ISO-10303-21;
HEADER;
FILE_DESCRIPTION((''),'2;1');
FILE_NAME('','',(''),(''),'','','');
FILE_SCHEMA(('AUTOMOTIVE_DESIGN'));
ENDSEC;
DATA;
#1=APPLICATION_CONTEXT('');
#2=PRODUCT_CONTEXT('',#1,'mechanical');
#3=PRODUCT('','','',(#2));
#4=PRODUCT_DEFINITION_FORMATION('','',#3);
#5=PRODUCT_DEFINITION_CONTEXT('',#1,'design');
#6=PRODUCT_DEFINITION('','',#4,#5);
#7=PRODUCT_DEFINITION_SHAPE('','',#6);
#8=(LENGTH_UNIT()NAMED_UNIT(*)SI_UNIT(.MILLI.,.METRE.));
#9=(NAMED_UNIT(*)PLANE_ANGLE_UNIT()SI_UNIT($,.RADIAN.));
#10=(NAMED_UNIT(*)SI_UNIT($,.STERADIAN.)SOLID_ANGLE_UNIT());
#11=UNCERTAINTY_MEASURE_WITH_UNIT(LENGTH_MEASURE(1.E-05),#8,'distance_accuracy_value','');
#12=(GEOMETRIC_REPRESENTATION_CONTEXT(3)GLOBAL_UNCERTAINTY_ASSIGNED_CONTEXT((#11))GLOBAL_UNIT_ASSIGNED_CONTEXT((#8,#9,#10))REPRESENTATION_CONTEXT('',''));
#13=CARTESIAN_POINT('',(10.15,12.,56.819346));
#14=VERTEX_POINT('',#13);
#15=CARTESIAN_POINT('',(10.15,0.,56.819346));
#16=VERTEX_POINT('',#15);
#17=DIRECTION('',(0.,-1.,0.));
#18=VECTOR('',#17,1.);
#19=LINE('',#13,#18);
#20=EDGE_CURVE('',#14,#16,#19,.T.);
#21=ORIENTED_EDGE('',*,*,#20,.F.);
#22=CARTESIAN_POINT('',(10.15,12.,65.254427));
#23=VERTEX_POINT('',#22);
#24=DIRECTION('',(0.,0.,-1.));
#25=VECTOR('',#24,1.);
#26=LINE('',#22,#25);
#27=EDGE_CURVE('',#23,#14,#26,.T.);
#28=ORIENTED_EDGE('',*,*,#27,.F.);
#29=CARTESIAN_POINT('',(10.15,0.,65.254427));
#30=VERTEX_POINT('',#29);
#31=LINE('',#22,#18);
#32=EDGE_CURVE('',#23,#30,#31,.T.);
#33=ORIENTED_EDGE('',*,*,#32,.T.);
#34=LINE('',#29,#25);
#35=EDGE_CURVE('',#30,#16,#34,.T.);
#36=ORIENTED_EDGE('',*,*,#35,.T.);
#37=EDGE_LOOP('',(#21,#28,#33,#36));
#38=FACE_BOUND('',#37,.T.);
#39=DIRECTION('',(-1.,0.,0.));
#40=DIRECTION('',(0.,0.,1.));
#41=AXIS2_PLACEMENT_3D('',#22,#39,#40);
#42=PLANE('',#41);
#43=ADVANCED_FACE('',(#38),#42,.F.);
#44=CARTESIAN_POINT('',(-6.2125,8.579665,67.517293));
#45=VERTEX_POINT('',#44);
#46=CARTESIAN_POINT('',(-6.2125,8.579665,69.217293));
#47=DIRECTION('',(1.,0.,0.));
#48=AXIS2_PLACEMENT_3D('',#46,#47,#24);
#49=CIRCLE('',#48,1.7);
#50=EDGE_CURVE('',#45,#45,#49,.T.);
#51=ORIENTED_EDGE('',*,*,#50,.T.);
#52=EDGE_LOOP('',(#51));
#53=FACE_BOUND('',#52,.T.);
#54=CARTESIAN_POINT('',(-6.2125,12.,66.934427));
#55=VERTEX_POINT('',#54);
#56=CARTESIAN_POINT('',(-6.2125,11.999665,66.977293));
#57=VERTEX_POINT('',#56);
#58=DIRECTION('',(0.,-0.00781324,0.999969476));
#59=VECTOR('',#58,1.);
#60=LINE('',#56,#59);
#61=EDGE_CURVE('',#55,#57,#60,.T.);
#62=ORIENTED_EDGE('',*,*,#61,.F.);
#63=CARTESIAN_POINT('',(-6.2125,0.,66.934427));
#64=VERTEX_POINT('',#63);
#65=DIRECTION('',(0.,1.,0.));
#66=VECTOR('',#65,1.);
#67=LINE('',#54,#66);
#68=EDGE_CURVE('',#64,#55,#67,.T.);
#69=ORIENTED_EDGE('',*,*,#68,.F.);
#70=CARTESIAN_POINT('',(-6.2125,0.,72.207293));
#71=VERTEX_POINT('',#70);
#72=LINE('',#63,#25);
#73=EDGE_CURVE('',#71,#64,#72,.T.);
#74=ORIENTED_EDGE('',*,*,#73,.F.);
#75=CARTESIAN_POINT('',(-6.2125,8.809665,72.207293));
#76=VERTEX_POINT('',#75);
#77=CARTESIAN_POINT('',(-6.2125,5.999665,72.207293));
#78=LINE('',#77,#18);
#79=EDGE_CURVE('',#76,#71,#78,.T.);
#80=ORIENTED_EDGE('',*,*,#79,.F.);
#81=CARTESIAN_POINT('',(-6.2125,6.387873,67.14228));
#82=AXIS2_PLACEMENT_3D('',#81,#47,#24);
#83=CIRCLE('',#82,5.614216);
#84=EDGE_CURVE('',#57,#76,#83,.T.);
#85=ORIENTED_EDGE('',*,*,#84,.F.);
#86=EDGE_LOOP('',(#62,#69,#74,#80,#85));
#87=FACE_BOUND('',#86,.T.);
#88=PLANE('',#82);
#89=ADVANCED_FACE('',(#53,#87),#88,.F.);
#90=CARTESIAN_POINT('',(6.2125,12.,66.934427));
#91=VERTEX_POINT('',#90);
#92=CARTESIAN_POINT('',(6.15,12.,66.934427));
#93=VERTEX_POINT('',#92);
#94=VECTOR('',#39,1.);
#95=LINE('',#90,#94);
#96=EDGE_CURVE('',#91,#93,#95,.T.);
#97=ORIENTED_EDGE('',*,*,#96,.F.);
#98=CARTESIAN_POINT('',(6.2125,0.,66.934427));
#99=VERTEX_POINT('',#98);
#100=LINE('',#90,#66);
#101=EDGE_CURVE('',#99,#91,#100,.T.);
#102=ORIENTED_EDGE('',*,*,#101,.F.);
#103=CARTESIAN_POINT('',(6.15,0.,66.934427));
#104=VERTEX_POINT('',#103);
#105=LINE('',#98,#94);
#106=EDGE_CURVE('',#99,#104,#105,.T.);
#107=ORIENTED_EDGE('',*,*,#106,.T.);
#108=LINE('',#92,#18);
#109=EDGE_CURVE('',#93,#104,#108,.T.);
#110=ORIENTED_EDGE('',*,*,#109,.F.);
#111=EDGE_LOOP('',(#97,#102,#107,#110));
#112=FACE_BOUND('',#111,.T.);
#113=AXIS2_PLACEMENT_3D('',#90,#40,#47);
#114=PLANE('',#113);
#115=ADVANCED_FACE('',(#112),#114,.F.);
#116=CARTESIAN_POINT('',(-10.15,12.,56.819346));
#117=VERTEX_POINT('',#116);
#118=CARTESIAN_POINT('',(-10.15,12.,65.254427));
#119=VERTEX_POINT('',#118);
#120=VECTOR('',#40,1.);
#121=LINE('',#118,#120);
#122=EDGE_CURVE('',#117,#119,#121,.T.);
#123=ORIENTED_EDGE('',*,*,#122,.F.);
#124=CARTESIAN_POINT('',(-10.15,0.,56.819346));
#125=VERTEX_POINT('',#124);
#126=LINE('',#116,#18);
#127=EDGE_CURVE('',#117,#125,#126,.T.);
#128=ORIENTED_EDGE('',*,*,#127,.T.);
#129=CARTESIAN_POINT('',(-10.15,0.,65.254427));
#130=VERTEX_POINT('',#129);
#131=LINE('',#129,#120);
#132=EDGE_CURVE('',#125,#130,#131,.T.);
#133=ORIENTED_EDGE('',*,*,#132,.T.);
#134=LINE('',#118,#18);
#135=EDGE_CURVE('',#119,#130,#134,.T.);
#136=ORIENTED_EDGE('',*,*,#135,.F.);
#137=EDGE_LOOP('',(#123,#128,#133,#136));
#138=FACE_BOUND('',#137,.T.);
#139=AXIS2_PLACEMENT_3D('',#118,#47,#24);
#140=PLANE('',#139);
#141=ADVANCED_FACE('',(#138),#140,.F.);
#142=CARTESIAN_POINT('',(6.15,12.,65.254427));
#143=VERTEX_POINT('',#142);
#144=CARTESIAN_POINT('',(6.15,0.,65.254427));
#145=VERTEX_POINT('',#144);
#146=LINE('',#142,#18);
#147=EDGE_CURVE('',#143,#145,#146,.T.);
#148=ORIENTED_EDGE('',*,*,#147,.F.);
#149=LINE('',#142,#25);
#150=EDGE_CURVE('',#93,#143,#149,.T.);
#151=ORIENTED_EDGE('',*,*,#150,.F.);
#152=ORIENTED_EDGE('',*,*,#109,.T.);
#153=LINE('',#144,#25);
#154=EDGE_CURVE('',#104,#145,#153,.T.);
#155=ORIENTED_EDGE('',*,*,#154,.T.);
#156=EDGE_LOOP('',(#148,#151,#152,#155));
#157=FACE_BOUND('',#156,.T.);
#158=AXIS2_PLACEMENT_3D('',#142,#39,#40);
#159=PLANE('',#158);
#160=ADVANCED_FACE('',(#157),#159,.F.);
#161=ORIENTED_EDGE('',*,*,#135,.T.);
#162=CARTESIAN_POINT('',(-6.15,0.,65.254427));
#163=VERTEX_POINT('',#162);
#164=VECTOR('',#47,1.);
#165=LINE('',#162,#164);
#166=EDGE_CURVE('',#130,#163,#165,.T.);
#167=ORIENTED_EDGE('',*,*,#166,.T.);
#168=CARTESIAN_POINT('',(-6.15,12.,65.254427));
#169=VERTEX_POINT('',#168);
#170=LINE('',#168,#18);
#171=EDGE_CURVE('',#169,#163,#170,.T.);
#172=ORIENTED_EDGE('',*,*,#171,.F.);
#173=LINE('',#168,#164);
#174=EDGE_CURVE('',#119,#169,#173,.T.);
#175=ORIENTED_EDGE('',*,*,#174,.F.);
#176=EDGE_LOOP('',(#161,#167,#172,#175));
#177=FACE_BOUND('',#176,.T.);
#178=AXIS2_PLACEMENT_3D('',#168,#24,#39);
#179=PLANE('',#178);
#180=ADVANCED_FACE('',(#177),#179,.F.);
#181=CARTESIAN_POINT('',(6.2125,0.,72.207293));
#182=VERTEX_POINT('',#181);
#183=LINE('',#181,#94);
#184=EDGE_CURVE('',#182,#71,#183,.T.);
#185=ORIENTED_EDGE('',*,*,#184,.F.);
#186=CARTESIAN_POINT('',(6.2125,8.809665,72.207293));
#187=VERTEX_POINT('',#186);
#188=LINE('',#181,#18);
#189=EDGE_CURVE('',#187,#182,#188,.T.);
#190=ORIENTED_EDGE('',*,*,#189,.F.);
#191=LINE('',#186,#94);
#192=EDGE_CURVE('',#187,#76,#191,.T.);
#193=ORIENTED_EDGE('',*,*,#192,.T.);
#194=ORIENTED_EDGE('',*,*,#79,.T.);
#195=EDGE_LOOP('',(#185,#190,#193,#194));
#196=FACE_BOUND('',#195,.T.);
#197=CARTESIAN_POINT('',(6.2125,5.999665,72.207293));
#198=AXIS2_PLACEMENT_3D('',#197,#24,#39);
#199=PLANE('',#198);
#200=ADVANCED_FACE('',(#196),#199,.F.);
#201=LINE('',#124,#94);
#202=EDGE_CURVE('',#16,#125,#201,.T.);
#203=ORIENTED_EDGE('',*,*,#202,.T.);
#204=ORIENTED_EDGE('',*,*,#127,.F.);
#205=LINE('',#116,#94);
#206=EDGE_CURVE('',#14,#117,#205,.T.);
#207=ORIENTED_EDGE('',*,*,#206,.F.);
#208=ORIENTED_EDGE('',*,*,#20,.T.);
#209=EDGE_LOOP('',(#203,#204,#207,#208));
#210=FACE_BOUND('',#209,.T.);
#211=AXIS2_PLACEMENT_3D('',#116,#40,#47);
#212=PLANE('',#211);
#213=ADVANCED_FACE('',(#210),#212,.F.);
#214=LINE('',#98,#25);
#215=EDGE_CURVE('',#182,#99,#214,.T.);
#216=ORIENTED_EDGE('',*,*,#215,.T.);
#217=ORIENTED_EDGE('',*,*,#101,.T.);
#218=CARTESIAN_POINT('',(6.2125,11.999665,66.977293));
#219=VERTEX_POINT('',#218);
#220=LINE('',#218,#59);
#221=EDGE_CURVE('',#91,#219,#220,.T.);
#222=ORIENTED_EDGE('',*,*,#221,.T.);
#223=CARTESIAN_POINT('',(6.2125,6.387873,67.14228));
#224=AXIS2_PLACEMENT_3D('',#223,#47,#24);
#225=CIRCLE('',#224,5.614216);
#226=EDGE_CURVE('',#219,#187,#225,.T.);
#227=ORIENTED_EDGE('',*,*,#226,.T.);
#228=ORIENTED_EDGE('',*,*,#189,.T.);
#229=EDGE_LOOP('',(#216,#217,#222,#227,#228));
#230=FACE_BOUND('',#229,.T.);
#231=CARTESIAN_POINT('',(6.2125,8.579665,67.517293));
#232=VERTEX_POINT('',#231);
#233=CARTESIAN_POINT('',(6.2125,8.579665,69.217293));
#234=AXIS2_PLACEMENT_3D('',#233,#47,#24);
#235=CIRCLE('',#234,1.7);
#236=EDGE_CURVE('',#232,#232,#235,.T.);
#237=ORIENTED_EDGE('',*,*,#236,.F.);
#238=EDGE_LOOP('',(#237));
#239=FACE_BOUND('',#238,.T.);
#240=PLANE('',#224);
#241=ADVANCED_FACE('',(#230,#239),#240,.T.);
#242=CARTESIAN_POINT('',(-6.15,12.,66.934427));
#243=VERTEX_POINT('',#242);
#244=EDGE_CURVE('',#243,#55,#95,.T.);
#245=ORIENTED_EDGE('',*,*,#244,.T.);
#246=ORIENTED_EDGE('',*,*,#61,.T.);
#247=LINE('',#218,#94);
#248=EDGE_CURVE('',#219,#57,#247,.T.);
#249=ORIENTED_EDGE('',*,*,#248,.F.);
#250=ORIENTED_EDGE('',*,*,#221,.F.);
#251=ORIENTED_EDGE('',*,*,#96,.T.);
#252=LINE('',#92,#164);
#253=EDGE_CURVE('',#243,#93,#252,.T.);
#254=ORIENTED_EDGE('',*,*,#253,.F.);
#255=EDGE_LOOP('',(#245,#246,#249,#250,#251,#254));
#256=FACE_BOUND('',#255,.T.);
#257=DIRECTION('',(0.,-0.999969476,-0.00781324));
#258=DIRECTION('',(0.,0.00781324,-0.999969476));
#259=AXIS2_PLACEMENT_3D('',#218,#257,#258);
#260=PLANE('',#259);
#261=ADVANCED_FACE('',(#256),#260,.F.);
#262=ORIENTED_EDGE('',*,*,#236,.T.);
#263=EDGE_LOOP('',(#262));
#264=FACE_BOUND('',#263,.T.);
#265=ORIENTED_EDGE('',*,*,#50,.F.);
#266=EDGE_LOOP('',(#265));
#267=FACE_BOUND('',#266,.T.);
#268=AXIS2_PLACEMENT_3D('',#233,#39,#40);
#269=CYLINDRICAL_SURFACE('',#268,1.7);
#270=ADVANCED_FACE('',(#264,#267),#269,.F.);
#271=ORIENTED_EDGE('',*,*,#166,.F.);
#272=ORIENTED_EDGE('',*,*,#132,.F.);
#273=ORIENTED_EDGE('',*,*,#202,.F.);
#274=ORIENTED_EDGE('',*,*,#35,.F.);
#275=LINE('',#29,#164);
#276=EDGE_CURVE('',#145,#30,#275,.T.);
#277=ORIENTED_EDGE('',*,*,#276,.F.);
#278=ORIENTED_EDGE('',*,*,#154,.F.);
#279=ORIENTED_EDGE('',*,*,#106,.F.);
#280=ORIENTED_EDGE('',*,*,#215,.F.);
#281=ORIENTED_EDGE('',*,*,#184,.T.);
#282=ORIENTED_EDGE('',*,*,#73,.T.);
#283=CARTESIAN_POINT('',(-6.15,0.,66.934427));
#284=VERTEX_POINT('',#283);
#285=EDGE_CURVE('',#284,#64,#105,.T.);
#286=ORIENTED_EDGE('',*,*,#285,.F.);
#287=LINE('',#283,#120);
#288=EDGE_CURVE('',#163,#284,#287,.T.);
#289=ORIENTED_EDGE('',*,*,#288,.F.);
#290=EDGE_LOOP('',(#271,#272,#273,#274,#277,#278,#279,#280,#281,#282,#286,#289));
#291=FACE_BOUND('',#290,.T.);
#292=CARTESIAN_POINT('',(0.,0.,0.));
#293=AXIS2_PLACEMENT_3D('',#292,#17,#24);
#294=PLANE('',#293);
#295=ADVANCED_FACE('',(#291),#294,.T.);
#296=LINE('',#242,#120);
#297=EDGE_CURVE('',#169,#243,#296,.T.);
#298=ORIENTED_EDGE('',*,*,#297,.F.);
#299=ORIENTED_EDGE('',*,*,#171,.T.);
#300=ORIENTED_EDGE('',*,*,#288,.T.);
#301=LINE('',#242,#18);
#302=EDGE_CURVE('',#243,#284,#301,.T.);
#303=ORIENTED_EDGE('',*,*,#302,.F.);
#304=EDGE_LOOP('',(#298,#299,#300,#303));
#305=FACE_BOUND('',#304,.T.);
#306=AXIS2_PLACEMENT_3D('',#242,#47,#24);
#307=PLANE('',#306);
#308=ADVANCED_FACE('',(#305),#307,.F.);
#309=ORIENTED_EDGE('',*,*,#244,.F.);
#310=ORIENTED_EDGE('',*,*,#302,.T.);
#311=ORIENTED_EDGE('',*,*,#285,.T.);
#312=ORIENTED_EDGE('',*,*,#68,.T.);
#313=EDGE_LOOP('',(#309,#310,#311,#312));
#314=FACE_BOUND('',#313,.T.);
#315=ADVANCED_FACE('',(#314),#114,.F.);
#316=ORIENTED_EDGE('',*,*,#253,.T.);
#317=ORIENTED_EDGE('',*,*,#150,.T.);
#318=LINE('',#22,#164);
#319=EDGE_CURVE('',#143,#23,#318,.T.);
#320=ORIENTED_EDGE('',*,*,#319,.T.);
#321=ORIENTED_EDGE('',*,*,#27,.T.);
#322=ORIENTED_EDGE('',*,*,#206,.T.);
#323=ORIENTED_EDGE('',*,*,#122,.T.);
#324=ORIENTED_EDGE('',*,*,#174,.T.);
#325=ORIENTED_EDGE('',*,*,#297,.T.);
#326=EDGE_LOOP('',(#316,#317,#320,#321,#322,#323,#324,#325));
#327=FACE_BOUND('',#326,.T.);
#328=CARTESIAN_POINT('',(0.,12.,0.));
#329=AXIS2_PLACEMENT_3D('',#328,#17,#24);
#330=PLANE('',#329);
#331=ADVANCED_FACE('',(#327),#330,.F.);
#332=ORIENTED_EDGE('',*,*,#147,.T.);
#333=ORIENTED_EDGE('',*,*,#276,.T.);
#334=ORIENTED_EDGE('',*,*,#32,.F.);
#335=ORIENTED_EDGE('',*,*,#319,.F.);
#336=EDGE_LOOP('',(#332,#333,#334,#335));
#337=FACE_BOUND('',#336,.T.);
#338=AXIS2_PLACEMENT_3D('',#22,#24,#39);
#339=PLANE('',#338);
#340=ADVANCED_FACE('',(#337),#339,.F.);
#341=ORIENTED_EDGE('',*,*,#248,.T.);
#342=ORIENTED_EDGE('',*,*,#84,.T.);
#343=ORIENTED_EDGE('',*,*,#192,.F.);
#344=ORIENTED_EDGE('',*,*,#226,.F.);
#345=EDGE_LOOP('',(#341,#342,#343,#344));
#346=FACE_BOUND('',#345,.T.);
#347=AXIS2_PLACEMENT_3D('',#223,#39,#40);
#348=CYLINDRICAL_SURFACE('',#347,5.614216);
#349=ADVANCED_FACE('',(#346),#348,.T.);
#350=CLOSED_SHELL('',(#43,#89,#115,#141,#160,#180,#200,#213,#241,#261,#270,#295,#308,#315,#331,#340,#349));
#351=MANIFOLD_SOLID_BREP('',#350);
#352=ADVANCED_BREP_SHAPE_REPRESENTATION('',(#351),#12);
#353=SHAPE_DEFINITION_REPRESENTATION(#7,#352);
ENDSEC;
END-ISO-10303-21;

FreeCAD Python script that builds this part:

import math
import FreeCAD as App
import Part
import Sketcher

doc = App.newDocument("Part")
body = doc.addObject("PartDesign::Body", "Body")

sketch1 = body.newObject("Sketcher::SketchObject", "Sketch")
sketch1.AttachmentSupport = (doc.getObject("XZ_Plane"), [""])
sketch1.MapMode = "FlatFace"
sketch1.addGeometry(Part.LineSegment(App.Vector(6.15, 65.254427, 0), App.Vector(10.15, 65.254427, 0)), False)
sketch1.addGeometry(Part.LineSegment(App.Vector(10.15, 65.254427, 0), App.Vector(10.15, 56.819346, 0)), False)
sketch1.addGeometry(Part.LineSegment(App.Vector(10.15, 56.819346, 0), App.Vector(-10.15, 56.819346, 0)), False)
sketch1.addGeometry(Part.LineSegment(App.Vector(-10.15, 56.819346, 0), App.Vector(-10.15, 65.254427, 0)), False)
sketch1.addGeometry(Part.LineSegment(App.Vector(-10.15, 65.254427, 0), App.Vector(-6.15, 65.254427, 0)), False)
sketch1.addGeometry(Part.LineSegment(App.Vector(-6.15, 65.254427, 0), App.Vector(-6.15, 66.934427, 0)), False)
sketch1.addGeometry(Part.LineSegment(App.Vector(-6.15, 66.934427, 0), App.Vector(6.15, 66.934427, 0)), False)
sketch1.addGeometry(Part.LineSegment(App.Vector(6.15, 66.934427, 0), App.Vector(6.15, 65.254427, 0)), False)
sketch1.addConstraint(Sketcher.Constraint("Coincident", 0, 2, 1, 1))
sketch1.addConstraint(Sketcher.Constraint("Coincident", 1, 2, 2, 1))
sketch1.addConstraint(Sketcher.Constraint("Coincident", 2, 2, 3, 1))
sketch1.addConstraint(Sketcher.Constraint("Coincident", 3, 2, 4, 1))
sketch1.addConstraint(Sketcher.Constraint("Coincident", 4, 2, 5, 1))
sketch1.addConstraint(Sketcher.Constraint("Coincident", 5, 2, 6, 1))
sketch1.addConstraint(Sketcher.Constraint("Coincident", 6, 2, 7, 1))
sketch1.addConstraint(Sketcher.Constraint("Coincident", 7, 2, 0, 1))
sketch1.addConstraint(Sketcher.Constraint("Horizontal", 0))
sketch1.addConstraint(Sketcher.Constraint("Vertical", 1))
sketch1.addConstraint(Sketcher.Constraint("Horizontal", 2))
sketch1.addConstraint(Sketcher.Constraint("Vertical", 3))
sketch1.addConstraint(Sketcher.Constraint("Horizontal", 4))
sketch1.addConstraint(Sketcher.Constraint("Vertical", 5))
sketch1.addConstraint(Sketcher.Constraint("Horizontal", 6))
sketch1.addConstraint(Sketcher.Constraint("Vertical", 7))
sketch1.addConstraint(Sketcher.Constraint("Symmetric", 0, 2, 3, 2, -2))
sketch1.addConstraint(Sketcher.Constraint("Equal", 0, 4))
sketch1.addConstraint(Sketcher.Constraint("DistanceX", 0, 1, 0, 2, 4.0))
sketch1.addConstraint(Sketcher.Constraint("DistanceX", 2, 2, 2, 1, 20.3))
sketch1.addConstraint(Sketcher.Constraint("DistanceY", 5, 1, 5, 2, 1.68))
sketch1.addConstraint(Sketcher.Constraint("DistanceY", 1, 2, 1, 1, 8.435081))
sketch1.addConstraint(Sketcher.Constraint("DistanceY", -1, 1, 0, 2, 65.254427))
pad1 = body.newObject("PartDesign::Pad", "Pad")
pad1.Profile = sketch1
pad1.Length = 12
pad1.Reversed = True

sketch2 = body.newObject("Sketcher::SketchObject", "Sketch001")
sketch2.AttachmentSupport = (doc.getObject("YZ_Plane"), [""])
sketch2.MapMode = "FlatFace"
sketch2.addGeometry(Part.ArcOfCircle(Part.Circle(App.Vector(6.387873, 67.14228, 0), App.Vector(0, 0, 1), 5.614216), math.radians(-1.68402), math.radians(64.445611)), False)
sketch2.addGeometry(Part.LineSegment(App.Vector(8.809665, 72.207293, 0), App.Vector(0, 72.207293, 0)), False)
sketch2.addGeometry(Part.LineSegment(App.Vector(0, 72.207293, 0), App.Vector(0, 66.934427, 0)), False)
sketch2.addGeometry(Part.LineSegment(App.Vector(0, 66.934427, 0), App.Vector(12, 66.934427, 0)), False)
sketch2.addGeometry(Part.LineSegment(App.Vector(12, 66.934427, 0), App.Vector(11.999665, 66.977293, 0)), False)
sketch2.addGeometry(Part.Circle(App.Vector(8.579665, 69.217293, 0), App.Vector(0, 0, 1), 1.7), False)
sketch2.addConstraint(Sketcher.Constraint("Coincident", 0, 2, 1, 1))
sketch2.addConstraint(Sketcher.Constraint("Coincident", 1, 2, 2, 1))
sketch2.addConstraint(Sketcher.Constraint("Coincident", 2, 2, 3, 1))
sketch2.addConstraint(Sketcher.Constraint("Coincident", 3, 2, 4, 1))
sketch2.addConstraint(Sketcher.Constraint("Coincident", 4, 2, 0, 1))
sketch2.addConstraint(Sketcher.Constraint("Horizontal", 1))
sketch2.addConstraint(Sketcher.Constraint("Vertical", 2))
sketch2.addConstraint(Sketcher.Constraint("Horizontal", 3))
sketch2.addConstraint(Sketcher.Constraint("PointOnObject", 1, 2, -2))
sketch2.addConstraint(Sketcher.Constraint("Diameter", 5, 3.4))
sketch2.addConstraint(Sketcher.Constraint("DistanceX", 3, 1, 3, 2, 12.0))
sketch2.addConstraint(Sketcher.Constraint("DistanceX", 5, 3, 0, 2, 0.23))
sketch2.addConstraint(Sketcher.Constraint("DistanceY", 5, 3, 0, 2, 2.99))
sketch2.addConstraint(Sketcher.Constraint("DistanceX", 5, 3, 4, 2, 3.42))
sketch2.addConstraint(Sketcher.Constraint("DistanceY", 4, 2, 5, 3, 2.24))
sketch2.addConstraint(Sketcher.Constraint("Radius", 0, 5.614216))
sketch2.addConstraint(Sketcher.Constraint("DistanceX", 1, 2, 1, 1, 8.809665))
sketch2.addConstraint(Sketcher.Constraint("DistanceY", 2, 2, 2, 1, 5.272866))
sketch2.addConstraint(Sketcher.Constraint("DistanceY", -1, 1, 0, 3, 67.14228))
pad2 = body.newObject("PartDesign::Pad", "Pad001")
pad2.Profile = sketch2
pad2.Length = 12.425
pad2.Midplane = True

doc.recompute()
